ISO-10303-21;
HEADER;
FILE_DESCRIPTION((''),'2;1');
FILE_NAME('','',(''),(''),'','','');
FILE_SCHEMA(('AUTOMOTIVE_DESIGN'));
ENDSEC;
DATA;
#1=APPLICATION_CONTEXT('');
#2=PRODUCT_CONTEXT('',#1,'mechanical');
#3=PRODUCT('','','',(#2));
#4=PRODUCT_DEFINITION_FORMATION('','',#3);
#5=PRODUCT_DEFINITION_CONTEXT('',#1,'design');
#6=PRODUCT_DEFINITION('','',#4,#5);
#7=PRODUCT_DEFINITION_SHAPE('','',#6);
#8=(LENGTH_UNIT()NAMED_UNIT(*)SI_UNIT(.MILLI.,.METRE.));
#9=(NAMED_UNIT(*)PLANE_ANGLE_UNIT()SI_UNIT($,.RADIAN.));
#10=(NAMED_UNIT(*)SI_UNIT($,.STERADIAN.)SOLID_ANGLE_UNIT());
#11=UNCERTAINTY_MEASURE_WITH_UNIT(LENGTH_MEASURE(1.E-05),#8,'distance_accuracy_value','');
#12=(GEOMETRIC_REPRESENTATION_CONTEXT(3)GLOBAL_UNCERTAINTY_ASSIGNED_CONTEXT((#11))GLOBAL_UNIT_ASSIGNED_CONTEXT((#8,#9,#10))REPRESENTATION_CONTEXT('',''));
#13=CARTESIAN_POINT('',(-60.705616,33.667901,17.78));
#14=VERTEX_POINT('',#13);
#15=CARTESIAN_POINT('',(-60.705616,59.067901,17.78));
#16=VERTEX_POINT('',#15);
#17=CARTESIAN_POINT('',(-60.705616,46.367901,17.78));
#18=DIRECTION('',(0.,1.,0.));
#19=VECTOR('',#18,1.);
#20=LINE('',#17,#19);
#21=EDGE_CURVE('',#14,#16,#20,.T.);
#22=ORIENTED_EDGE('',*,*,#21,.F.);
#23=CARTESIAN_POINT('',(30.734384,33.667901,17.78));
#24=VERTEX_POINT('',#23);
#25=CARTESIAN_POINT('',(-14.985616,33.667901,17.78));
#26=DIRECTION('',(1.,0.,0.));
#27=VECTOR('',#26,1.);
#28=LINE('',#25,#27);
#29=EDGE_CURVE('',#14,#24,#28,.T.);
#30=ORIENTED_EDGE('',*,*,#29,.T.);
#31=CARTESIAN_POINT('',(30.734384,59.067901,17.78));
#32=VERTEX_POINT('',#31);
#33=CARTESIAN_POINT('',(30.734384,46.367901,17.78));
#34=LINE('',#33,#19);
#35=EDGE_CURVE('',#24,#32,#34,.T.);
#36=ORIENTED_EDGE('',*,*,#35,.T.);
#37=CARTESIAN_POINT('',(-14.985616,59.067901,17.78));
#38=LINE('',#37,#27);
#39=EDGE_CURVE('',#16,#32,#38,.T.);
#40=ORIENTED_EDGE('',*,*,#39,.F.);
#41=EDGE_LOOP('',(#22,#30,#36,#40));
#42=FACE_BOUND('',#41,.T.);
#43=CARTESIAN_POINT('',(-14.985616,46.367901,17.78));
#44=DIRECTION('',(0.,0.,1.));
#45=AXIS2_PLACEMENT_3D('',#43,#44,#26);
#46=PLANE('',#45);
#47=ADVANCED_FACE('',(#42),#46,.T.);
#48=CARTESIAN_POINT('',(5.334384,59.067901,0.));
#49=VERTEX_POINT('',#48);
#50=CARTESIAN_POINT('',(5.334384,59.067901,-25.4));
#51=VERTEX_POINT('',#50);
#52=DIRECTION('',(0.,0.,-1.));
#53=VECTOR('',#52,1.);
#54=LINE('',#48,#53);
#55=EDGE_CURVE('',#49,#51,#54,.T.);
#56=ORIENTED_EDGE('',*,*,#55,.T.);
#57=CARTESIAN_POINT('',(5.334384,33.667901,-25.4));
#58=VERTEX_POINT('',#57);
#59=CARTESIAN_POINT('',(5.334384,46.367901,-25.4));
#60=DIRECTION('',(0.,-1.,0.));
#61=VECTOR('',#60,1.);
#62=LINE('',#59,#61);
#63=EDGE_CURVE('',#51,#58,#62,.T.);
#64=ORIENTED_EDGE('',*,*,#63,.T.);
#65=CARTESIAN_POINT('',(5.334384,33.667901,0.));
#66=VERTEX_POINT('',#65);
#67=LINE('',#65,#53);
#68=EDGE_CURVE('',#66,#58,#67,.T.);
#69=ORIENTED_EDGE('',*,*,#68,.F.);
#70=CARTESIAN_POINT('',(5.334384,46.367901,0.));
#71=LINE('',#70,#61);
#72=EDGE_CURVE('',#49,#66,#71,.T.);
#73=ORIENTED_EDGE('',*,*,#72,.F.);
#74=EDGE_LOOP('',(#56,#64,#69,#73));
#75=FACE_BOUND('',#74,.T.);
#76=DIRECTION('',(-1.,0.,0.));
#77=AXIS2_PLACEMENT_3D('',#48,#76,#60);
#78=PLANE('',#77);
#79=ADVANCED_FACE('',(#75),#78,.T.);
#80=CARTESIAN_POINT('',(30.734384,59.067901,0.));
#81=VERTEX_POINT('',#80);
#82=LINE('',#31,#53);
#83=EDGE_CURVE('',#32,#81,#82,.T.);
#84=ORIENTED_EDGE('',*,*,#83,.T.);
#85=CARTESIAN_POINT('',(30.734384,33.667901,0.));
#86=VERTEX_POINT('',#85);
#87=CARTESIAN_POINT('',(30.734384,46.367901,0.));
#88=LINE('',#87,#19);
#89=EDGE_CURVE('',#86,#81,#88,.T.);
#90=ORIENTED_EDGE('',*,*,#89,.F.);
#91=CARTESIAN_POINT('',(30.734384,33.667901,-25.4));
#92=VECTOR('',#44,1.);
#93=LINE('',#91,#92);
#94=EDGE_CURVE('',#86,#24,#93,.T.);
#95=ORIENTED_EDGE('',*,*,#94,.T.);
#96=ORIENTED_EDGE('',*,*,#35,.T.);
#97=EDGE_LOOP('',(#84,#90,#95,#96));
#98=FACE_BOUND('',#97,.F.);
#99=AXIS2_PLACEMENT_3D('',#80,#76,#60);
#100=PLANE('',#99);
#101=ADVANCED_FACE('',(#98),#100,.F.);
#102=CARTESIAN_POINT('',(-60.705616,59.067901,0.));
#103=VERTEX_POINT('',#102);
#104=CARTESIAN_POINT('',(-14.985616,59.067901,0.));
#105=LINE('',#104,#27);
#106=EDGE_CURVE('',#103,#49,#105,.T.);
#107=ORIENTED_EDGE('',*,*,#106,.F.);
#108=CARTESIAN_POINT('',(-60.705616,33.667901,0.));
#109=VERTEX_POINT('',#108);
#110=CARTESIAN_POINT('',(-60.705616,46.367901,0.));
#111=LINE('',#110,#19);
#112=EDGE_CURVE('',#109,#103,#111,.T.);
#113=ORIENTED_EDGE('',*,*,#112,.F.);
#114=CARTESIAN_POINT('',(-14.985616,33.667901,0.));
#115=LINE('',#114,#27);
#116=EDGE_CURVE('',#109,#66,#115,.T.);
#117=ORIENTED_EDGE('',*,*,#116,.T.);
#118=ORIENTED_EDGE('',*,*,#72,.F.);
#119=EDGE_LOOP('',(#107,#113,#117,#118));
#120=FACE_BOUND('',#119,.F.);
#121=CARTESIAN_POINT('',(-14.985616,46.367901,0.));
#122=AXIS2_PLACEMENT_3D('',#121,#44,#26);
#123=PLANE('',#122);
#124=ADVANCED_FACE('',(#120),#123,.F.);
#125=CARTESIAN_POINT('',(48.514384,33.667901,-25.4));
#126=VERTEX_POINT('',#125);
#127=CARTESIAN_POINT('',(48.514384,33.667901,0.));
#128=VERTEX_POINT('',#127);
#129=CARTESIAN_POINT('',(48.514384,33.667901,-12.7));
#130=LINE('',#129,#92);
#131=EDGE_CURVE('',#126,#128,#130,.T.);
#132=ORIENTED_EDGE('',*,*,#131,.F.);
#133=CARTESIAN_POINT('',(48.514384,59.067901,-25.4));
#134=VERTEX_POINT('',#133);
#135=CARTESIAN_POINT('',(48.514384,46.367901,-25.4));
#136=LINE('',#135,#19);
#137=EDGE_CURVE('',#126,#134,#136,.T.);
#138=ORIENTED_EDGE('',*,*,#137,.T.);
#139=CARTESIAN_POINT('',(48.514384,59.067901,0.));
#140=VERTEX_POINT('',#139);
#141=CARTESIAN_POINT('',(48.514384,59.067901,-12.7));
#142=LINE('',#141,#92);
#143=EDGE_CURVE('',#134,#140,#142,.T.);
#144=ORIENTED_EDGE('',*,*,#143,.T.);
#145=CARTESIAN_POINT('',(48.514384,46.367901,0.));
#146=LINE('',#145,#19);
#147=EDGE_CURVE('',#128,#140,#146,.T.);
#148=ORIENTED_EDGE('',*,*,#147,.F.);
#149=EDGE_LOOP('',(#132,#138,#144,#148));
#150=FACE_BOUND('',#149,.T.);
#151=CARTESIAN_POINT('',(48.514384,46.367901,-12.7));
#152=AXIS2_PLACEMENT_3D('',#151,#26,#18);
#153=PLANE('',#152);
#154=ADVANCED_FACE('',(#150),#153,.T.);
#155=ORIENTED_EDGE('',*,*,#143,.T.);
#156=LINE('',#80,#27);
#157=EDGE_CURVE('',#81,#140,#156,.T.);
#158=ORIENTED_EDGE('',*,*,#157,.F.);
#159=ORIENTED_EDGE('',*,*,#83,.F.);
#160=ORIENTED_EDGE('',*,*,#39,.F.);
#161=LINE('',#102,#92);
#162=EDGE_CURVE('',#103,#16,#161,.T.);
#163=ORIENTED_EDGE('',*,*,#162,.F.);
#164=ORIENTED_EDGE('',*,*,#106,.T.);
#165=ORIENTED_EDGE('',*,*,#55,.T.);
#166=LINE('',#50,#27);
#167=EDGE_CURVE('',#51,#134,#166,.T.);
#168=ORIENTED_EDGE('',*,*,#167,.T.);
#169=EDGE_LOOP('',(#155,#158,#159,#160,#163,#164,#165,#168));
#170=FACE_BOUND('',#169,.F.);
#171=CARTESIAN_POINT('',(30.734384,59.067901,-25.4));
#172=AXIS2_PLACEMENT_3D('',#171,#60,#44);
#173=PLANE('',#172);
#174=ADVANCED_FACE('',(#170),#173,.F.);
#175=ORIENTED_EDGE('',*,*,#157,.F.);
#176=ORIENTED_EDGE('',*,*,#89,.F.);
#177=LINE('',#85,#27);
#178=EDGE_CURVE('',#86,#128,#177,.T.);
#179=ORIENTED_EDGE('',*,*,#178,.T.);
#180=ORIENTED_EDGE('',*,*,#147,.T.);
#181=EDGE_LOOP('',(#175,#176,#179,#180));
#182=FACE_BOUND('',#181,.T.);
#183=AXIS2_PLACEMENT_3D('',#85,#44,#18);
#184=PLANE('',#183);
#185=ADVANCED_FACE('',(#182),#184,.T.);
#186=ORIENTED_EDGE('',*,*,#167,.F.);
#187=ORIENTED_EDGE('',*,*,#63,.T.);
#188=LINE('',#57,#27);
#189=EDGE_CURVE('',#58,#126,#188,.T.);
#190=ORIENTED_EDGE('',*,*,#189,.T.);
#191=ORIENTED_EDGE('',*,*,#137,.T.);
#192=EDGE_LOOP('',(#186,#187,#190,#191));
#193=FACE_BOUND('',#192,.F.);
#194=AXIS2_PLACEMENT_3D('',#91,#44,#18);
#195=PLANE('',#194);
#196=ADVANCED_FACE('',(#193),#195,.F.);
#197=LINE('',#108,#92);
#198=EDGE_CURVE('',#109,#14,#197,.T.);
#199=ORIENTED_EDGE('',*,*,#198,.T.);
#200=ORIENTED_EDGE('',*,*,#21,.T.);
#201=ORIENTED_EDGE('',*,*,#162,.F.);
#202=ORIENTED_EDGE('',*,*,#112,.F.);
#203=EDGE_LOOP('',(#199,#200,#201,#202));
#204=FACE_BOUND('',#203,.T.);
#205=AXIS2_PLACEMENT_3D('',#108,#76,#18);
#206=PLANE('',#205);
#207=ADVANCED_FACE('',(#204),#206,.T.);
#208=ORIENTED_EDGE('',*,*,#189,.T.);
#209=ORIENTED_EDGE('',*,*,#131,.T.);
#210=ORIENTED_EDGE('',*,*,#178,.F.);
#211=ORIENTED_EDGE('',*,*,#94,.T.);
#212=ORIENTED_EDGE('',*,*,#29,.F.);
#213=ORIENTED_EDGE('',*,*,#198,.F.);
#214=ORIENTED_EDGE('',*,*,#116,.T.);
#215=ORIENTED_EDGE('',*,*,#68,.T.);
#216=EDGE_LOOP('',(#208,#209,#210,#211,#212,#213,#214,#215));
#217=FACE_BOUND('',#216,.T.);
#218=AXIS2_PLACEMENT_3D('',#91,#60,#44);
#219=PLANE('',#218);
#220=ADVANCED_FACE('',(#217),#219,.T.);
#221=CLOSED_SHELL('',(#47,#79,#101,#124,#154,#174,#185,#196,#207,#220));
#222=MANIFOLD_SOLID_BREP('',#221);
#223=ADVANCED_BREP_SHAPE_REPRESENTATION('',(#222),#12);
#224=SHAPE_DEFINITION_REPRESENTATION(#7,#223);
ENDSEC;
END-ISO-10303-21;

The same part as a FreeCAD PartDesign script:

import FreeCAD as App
import Part
import Sketcher
from FreeCAD import Vector
Q = App.Units.Quantity


def add_polygon(sketch, points):
    """Adds a closed chain of lines whose ends are joined by coincident constraints."""
    first, n = sketch.GeometryCount, len(points)
    for a, b in zip(points, points[1:] + points[:1]):
        sketch.addGeometry(Part.LineSegment(App.Vector(*a, 0), App.Vector(*b, 0)), False)
    for i in range(n):
        sketch.addConstraint(Sketcher.Constraint("Coincident", first + i, 2, first + (i + 1) % n, 1))

doc = App.newDocument("Part")
body = doc.addObject("PartDesign::Body", "Body")

# Sketch on XY plane
sketch1 = body.newObject("Sketcher::SketchObject", "Sketch")
sketch1.AttachmentSupport = (doc.getObject("XY_Plane"), [""])
sketch1.MapMode = "FlatFace"
add_polygon(sketch1, [(-61, 59), (-61, 34), (31, 34), (31, 59)])  # lines 0-3
sketch1.addConstraint([
    Sketcher.Constraint("Vertical", 0),
    Sketcher.Constraint("Horizontal", 1),
    Sketcher.Constraint("Vertical", 2),
    Sketcher.Constraint("Horizontal", 3),
    Sketcher.Constraint("DistanceY", 0, 2, 0, 1, Q("1 in")),
    Sketcher.Constraint("DistanceX", 1, 1, 1, 2, Q("3.6 in")),
    Sketcher.Constraint("DistanceY", -1, 1, 0, 2, 33.667901),
    Sketcher.Constraint("DistanceX", 0, 2, -1, 1, 60.705616),
])
pad1 = body.newObject("PartDesign::Pad", "Pad")
pad1.Profile = sketch1
pad1.Length = Q("0.7 in")

# Sketch on XY plane
sketch2 = body.newObject("Sketcher::SketchObject", "Sketch001")
sketch2.AttachmentSupport = (doc.getObject("XY_Plane"), [""])
sketch2.MapMode = "FlatFace"
add_polygon(sketch2, [(5, 34), (5, 59), (31, 59), (31, 34)])  # lines 0-3
sketch2.addConstraint([
    Sketcher.Constraint("Vertical", 0),
    Sketcher.Constraint("Horizontal", 1),
    Sketcher.Constraint("Vertical", 2),
    Sketcher.Constraint("Horizontal", 3),
    Sketcher.Constraint("Equal", 3, 0),
    Sketcher.Constraint("DistanceX", 1, 1, 1, 2, Q("1 in")),
    Sketcher.Constraint("DistanceY", -1, 1, 0, 2, 59.067901),
    Sketcher.Constraint("DistanceX", -1, 1, 0, 2, 5.334384),
])
pad2 = body.newObject("PartDesign::Pad", "Pad001")
pad2.Profile = sketch2
pad2.Length = Q("1 in")
pad2.Reversed = True

# Sketch on YZ plane
sketch3 = body.newObject("Sketcher::SketchObject", "Sketch002")
sketch3.AttachmentSupport = (doc.getObject("YZ_Plane"), [""])
sketch3.MapMode = "FlatFace"
sketch3.AttachmentOffset = App.Placement(Vector(0, 0, 30.734384), App.Rotation())
add_polygon(sketch3, [(34, 0), (34, -25), (59, -25), (59, 0)])  # lines 0-3
sketch3.addConstraint([
    Sketcher.Constraint("Vertical", 0),
    Sketcher.Constraint("Horizontal", 1),
    Sketcher.Constraint("Vertical", 2),
    Sketcher.Constraint("Horizontal", 3),
    Sketcher.Constraint("PointOnObject", 2, 2, -1),
    Sketcher.Constraint("Equal", 3, 0),
    Sketcher.Constraint("DistanceX", 1, 1, 1, 2, Q("1 in")),
    Sketcher.Constraint("DistanceX", -1, 1, 0, 2, 33.667901),
])
pad3 = body.newObject("PartDesign::Pad", "Pad002")
pad3.Profile = sketch3
pad3.Length = Q("0.7 in")

doc.recompute()
